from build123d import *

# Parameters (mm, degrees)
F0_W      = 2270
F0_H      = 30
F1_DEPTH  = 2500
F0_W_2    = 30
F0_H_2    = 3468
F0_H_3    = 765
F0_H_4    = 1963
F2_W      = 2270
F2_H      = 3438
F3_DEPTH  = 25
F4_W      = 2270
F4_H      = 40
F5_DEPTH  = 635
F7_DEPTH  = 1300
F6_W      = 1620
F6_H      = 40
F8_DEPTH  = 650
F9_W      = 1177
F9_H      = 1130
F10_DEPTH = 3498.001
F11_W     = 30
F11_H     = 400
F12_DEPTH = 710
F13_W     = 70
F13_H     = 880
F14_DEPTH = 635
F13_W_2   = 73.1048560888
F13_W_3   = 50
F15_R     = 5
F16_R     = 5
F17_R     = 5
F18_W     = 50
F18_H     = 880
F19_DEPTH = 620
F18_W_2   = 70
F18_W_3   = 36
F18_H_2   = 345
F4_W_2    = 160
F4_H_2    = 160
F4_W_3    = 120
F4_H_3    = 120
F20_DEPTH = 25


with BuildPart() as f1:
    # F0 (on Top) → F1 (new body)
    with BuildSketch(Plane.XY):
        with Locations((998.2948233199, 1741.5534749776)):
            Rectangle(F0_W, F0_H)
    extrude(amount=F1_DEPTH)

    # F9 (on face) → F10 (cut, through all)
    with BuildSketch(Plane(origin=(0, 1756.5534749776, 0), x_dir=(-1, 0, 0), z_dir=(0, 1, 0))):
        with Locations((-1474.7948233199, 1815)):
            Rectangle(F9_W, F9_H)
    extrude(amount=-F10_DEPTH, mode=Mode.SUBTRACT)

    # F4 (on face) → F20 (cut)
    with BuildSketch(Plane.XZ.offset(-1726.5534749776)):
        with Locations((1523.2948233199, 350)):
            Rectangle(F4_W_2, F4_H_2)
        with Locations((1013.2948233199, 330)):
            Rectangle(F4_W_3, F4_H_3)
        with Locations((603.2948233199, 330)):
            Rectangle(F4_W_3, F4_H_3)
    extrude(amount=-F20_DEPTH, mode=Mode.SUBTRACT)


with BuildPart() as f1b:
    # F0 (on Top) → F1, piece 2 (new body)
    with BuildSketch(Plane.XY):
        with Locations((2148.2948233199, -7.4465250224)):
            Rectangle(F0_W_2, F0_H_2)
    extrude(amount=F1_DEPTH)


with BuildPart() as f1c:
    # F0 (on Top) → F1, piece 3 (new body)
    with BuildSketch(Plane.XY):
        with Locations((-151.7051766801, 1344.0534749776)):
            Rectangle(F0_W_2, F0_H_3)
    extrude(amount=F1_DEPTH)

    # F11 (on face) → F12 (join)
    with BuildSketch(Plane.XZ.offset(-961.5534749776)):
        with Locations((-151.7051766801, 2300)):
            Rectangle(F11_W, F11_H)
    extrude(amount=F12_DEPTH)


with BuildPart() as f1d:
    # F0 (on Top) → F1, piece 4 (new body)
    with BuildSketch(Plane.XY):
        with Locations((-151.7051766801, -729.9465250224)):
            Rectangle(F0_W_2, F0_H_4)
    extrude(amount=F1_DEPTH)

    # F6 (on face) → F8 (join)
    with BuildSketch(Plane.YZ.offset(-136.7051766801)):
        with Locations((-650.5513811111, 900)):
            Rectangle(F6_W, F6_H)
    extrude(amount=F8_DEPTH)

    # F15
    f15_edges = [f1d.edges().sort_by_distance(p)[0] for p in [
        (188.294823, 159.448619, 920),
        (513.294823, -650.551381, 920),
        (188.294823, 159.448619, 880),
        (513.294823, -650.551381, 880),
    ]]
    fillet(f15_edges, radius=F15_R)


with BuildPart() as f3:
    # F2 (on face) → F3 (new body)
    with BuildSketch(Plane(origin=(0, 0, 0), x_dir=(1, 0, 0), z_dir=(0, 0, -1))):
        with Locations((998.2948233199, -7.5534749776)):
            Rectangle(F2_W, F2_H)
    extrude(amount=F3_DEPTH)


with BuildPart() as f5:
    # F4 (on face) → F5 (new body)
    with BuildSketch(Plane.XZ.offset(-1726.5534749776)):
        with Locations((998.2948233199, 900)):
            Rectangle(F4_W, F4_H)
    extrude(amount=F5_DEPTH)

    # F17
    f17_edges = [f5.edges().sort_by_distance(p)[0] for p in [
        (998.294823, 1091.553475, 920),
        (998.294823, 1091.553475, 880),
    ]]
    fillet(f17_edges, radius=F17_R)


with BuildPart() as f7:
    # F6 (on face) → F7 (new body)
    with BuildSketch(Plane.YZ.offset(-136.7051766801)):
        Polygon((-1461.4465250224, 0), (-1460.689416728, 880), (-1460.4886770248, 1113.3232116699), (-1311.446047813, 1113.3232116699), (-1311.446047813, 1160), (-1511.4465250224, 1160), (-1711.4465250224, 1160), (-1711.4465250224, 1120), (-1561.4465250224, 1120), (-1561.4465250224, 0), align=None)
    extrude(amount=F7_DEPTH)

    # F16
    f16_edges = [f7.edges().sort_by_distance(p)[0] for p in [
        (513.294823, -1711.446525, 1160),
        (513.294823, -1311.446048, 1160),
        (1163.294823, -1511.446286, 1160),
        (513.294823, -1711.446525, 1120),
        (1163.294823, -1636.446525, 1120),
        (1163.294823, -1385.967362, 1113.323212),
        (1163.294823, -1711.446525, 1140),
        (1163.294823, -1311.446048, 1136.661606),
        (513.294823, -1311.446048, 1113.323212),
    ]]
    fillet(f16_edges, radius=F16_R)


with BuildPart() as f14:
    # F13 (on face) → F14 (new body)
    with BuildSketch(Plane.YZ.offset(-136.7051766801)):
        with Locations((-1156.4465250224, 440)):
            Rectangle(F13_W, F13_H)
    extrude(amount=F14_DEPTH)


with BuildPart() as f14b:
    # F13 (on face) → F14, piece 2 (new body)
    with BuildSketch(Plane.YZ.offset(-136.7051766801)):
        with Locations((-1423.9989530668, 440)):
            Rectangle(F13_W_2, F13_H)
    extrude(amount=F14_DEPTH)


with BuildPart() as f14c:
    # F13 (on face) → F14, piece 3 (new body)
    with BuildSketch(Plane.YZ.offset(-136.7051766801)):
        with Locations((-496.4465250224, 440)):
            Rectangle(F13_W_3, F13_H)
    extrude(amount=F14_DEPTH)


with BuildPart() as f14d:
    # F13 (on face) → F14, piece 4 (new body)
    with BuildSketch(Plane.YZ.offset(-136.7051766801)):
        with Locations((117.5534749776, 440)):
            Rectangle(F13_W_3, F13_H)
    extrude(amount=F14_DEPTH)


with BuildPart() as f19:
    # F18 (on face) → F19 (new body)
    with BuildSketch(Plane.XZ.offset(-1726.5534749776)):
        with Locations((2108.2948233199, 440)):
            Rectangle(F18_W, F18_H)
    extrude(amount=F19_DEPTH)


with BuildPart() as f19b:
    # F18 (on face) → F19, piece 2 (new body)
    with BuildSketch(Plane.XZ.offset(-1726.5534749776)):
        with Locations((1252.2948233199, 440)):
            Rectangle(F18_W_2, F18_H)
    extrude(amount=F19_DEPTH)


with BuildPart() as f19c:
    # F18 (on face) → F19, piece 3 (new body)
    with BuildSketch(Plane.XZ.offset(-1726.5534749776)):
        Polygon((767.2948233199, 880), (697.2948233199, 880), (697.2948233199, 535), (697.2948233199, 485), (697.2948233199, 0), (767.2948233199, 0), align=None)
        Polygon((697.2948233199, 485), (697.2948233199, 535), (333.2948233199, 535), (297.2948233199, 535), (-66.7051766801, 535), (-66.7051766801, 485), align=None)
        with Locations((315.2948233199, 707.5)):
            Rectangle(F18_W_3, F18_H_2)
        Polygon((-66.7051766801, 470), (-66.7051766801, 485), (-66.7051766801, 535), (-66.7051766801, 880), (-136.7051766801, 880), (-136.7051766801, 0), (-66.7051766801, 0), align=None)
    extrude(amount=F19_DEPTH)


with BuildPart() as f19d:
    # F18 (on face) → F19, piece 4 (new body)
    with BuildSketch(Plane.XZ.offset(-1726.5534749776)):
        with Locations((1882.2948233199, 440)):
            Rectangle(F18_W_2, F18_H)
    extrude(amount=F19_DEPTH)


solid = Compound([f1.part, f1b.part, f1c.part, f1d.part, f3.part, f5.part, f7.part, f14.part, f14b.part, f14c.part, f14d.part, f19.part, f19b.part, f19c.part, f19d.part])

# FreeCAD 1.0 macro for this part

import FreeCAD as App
import Part
import Sketcher

V = App.Vector


def edges_at(feature, points):
    """Names of the edges that pass closest to the given points."""
    edges = feature.Shape.Edges
    near = lambda p: min(range(len(edges)), key=lambda i: edges[i].distToShape(Part.Vertex(*p))[0])
    return sorted({f"Edge{near(p) + 1}" for p in points})

doc = App.newDocument("Part")
params = doc.addObject("Spreadsheet::Sheet", "Params")
for row, (alias, value) in enumerate([
    ("sketch1_width", "2270 mm"),
    ("sketch1_height", "30 mm"),
    ("pad1_length", "2500 mm"),
    ("sketch2_width", "1177 mm"),
    ("sketch2_height", "1130 mm"),
    ("sketch3_width", "160 mm"),
    ("sketch3_width2", "120 mm"),
    ("pocket2_length", "25 mm"),
    ("sketch4_width", "30 mm"),
    ("sketch4_height", "3468 mm"),
    ("pad2_length", "2500 mm"),
    ("sketch5_width", "30 mm"),
    ("sketch5_height", "765 mm"),
    ("pad3_length", "2500 mm"),
    ("sketch6_width", "30 mm"),
    ("sketch6_height", "400 mm"),
    ("pad4_length", "710 mm"),
    ("sketch7_width", "30 mm"),
    ("sketch7_height", "1963 mm"),
    ("pad5_length", "2500 mm"),
    ("sketch8_width", "1620 mm"),
    ("sketch8_height", "40 mm"),
    ("pad6_length", "650 mm"),
    ("fillet_radius", "5 mm"),
    ("sketch9_width", "2270 mm"),
    ("sketch9_height", "3438 mm"),
    ("pad7_length", "25 mm"),
    ("sketch10_width", "2270 mm"),
    ("sketch10_height", "40 mm"),
    ("pad8_length", "635 mm"),
    ("fillet2_radius", "5 mm"),
    ("sketch11_width", "150 mm"),
    ("sketch11_width2", "100 mm"),
    ("sketch11_height", "40 mm"),
    ("sketch11_height2", "1120 mm"),
    ("pad9_length", "1300 mm"),
    ("fillet3_radius", "5 mm"),
    ("sketch12_width", "70 mm"),
    ("sketch12_height", "880 mm"),
    ("pad10_length", "635 mm"),
    ("sketch13_height", "880 mm"),
    ("pad11_length", "635 mm"),
    ("sketch14_width", "50 mm"),
    ("sketch14_height", "880 mm"),
    ("pad12_length", "635 mm"),
    ("sketch15_width", "50 mm"),
    ("sketch15_height", "880 mm"),
    ("pad13_length", "635 mm"),
    ("sketch16_width", "50 mm"),
    ("sketch16_height", "880 mm"),
    ("pad14_length", "620 mm"),
    ("sketch17_width", "70 mm"),
    ("sketch17_height", "880 mm"),
    ("pad15_length", "620 mm"),
    ("sketch18_width", "70 mm"),
    ("sketch18_width2", "364 mm"),
    ("sketch18_width3", "36 mm"),
    ("sketch18_height", "345 mm"),
    ("sketch18_height2", "880 mm"),
    ("pad16_length", "620 mm"),
    ("sketch19_width", "70 mm"),
    ("sketch19_height", "880 mm"),
    ("pad17_length", "620 mm"),
], start=1):
    params.set(f"A{row}", alias)
    params.set(f"B{row}", "=" + value)
    params.setAlias(f"B{row}", alias)

body = doc.addObject("PartDesign::Body", "Body")

# Sketch on XY plane
sketch1 = body.newObject("Sketcher::SketchObject", "Sketch")
sketch1.AttachmentSupport = (doc.getObject("XY_Plane"), [""])
sketch1.MapMode = "FlatFace"
sketch1.addGeometry([
    Part.LineSegment(V(-137, 1757, 0), V(-137, 1727, 0)),
    Part.LineSegment(V(-137, 1727, 0), V(2133, 1727, 0)),
    Part.LineSegment(V(2133, 1727, 0), V(2133, 1757, 0)),
    Part.LineSegment(V(2133, 1757, 0), V(-137, 1757, 0)),
], False)
sketch1.addConstraint([
    Sketcher.Constraint("Coincident", 0, 2, 1, 1),
    Sketcher.Constraint("Coincident", 1, 2, 2, 1),
    Sketcher.Constraint("Coincident", 2, 2, 3, 1),
    Sketcher.Constraint("Coincident", 3, 2, 0, 1),
    Sketcher.Constraint("Vertical", 0),
    Sketcher.Constraint("Horizontal", 1),
    Sketcher.Constraint("Vertical", 2),
    Sketcher.Constraint("Horizontal", 3),
    Sketcher.Constraint("DistanceX", 1, 1, 1, 2, 2270.0),
    Sketcher.Constraint("DistanceY", 0, 2, 0, 1, 30.0),
    Sketcher.Constraint("DistanceX", 0, 2, -1, 1, 136.705177),
    Sketcher.Constraint("DistanceY", -1, 1, 0, 2, 1726.553475),
])
sketch1.setExpression("Constraints[8]", "Params.sketch1_width")
sketch1.setExpression("Constraints[9]", "Params.sketch1_height")
pad1 = body.newObject("PartDesign::Pad", "Pad")
pad1.Profile = sketch1
pad1.setExpression("Length", "Params.pad1_length")

# Sketch on XZ plane
sketch2 = body.newObject("Sketcher::SketchObject", "Sketch001")
sketch2.AttachmentSupport = (doc.getObject("XZ_Plane"), [""])
sketch2.MapMode = "FlatFace"
sketch2.AttachmentOffset = App.Placement(V(0, 0, -1756.553475), App.Rotation())
sketch2.addGeometry([
    Part.LineSegment(V(2063, 2380, 0), V(2063, 1250, 0)),
    Part.LineSegment(V(2063, 1250, 0), V(886, 1250, 0)),
    Part.LineSegment(V(886, 1250, 0), V(886, 2380, 0)),
    Part.LineSegment(V(886, 2380, 0), V(2063, 2380, 0)),
], False)
sketch2.addConstraint([
    Sketcher.Constraint("Coincident", 0, 2, 1, 1),
    Sketcher.Constraint("Coincident", 1, 2, 2, 1),
    Sketcher.Constraint("Coincident", 2, 2, 3, 1),
    Sketcher.Constraint("Coincident", 3, 2, 0, 1),
    Sketcher.Constraint("Vertical", 0),
    Sketcher.Constraint("Horizontal", 1),
    Sketcher.Constraint("Vertical", 2),
    Sketcher.Constraint("Horizontal", 3),
    Sketcher.Constraint("DistanceX", 1, 2, 1, 1, 1177.0),
    Sketcher.Constraint("DistanceY", 0, 2, 0, 1, 1130.0),
    Sketcher.Constraint("DistanceY", -1, 1, 0, 2, 1250.0),
    Sketcher.Constraint("DistanceX", -1, 1, 0, 2, 2063.294823),
])
sketch2.setExpression("Constraints[8]", "Params.sketch2_width")
sketch2.setExpression("Constraints[9]", "Params.sketch2_height")
pocket1 = body.newObject("PartDesign::Pocket", "Pocket")
pocket1.Profile = sketch2
pocket1.Type = "ThroughAll"
pocket1.Reversed = True

# Sketch on XZ plane
sketch3 = body.newObject("Sketcher::SketchObject", "Sketch002")
sketch3.AttachmentSupport = (doc.getObject("XZ_Plane"), [""])
sketch3.MapMode = "FlatFace"
sketch3.AttachmentOffset = App.Placement(V(0, 0, -1726.553475), App.Rotation())
sketch3.addGeometry([
    Part.LineSegment(V(1443, 430, 0), V(1443, 270, 0)),  # 0
    Part.LineSegment(V(1443, 270, 0), V(1603, 270, 0)),  # 1
    Part.LineSegment(V(1603, 270, 0), V(1603, 430, 0)),  # 2
    Part.LineSegment(V(1603, 430, 0), V(1443, 430, 0)),  # 3
    Part.LineSegment(V(953, 390, 0), V(953, 270, 0)),  # 4
    Part.LineSegment(V(953, 270, 0), V(1073, 270, 0)),  # 5
    Part.LineSegment(V(1073, 270, 0), V(1073, 390, 0)),  # 6
    Part.LineSegment(V(1073, 390, 0), V(953, 390, 0)),  # 7
    Part.LineSegment(V(543, 390, 0), V(543, 270, 0)),  # 8
    Part.LineSegment(V(543, 270, 0), V(663, 270, 0)),  # 9
    Part.LineSegment(V(663, 270, 0), V(663, 390, 0)),  # 10
    Part.LineSegment(V(663, 390, 0), V(543, 390, 0)),  # 11
], False)
sketch3.addConstraint([
    Sketcher.Constraint("Coincident", 0, 2, 1, 1),
    Sketcher.Constraint("Coincident", 1, 2, 2, 1),
    Sketcher.Constraint("Coincident", 2, 2, 3, 1),
    Sketcher.Constraint("Coincident", 3, 2, 0, 1),
    Sketcher.Constraint("Coincident", 4, 2, 5, 1),
    Sketcher.Constraint("Coincident", 5, 2, 6, 1),
    Sketcher.Constraint("Coincident", 6, 2, 7, 1),
    Sketcher.Constraint("Coincident", 7, 2, 4, 1),
    Sketcher.Constraint("Coincident", 8, 2, 9, 1),
    Sketcher.Constraint("Coincident", 9, 2, 10, 1),
    Sketcher.Constraint("Coincident", 10, 2, 11, 1),
    Sketcher.Constraint("Coincident", 11, 2, 8, 1),
    Sketcher.Constraint("Vertical", 0),
    Sketcher.Constraint("Horizontal", 1),
    Sketcher.Constraint("Vertical", 2),
    Sketcher.Constraint("Horizontal", 3),
    Sketcher.Constraint("Vertical", 4),
    Sketcher.Constraint("Horizontal", 5),
    Sketcher.Constraint("Vertical", 6),
    Sketcher.Constraint("Horizontal", 7),
    Sketcher.Constraint("Vertical", 8),
    Sketcher.Constraint("Horizontal", 9),
    Sketcher.Constraint("Vertical", 10),
    Sketcher.Constraint("Horizontal", 11),
    Sketcher.Constraint("Horizontal", 1, 2, 4, 2),
    Sketcher.Constraint("Horizontal", 5, 2, 8, 2),
    Sketcher.Constraint("Horizontal", 7, 2, 10, 2),
    Sketcher.Constraint("Equal", 7, 9),
    Sketcher.Constraint("Equal", 3, 0),
    Sketcher.Constraint("Equal", 11, 4),
    Sketcher.Constraint("DistanceX", 1, 1, 1, 2, 160.0),
    Sketcher.Constraint("DistanceX", 5, 1, 5, 2, 120.0),
    Sketcher.Constraint("DistanceY", -1, 1, 0, 2, 270.0),
    Sketcher.Constraint("DistanceX", 4, 2, 0, 2, 490.0),
    Sketcher.Constraint("DistanceX", 8, 2, 4, 2, 410.0),
    Sketcher.Constraint("DistanceX", -1, 1, 0, 2, 1443.294823),
])
sketch3.setExpression("Constraints[30]", "Params.sketch3_width")
sketch3.setExpression("Constraints[31]", "Params.sketch3_width2")
pocket2 = body.newObject("PartDesign::Pocket", "Pocket001")
pocket2.Profile = sketch3
pocket2.setExpression("Length", "Params.pocket2_length")
body2 = doc.addObject("PartDesign::Body", "Body001")

# Sketch on XY plane
sketch4 = body2.newObject("Sketcher::SketchObject", "Sketch003")
sketch4.AttachmentSupport = (doc.getObject("XY_Plane001"), [""])
sketch4.MapMode = "FlatFace"
sketch4.addGeometry([
    Part.LineSegment(V(2133, 1727, 0), V(2133, -1741, 0)),
    Part.LineSegment(V(2133, -1741, 0), V(2163, -1741, 0)),
    Part.LineSegment(V(2163, -1741, 0), V(2163, 1727, 0)),
    Part.LineSegment(V(2163, 1727, 0), V(2133, 1727, 0)),
], False)
sketch4.addConstraint([
    Sketcher.Constraint("Coincident", 0, 2, 1, 1),
    Sketcher.Constraint("Coincident", 1, 2, 2, 1),
    Sketcher.Constraint("Coincident", 2, 2, 3, 1),
    Sketcher.Constraint("Coincident", 3, 2, 0, 1),
    Sketcher.Constraint("Vertical", 0),
    Sketcher.Constraint("Horizontal", 1),
    Sketcher.Constraint("Vertical", 2),
    Sketcher.Constraint("Horizontal", 3),
    Sketcher.Constraint("DistanceX", 1, 1, 1, 2, 30.0),
    Sketcher.Constraint("DistanceY", 0, 2, 0, 1, 3468.0),
    Sketcher.Constraint("DistanceX", -1, 1, 0, 2, 2133.294823),
    Sketcher.Constraint("DistanceY", 0, 2, -1, 1, 1741.446525),
])
sketch4.setExpression("Constraints[8]", "Params.sketch4_width")
sketch4.setExpression("Constraints[9]", "Params.sketch4_height")
pad2 = body2.newObject("PartDesign::Pad", "Pad001")
pad2.Profile = sketch4
pad2.setExpression("Length", "Params.pad2_length")
body3 = doc.addObject("PartDesign::Body", "Body002")

# Sketch on XY plane
sketch5 = body3.newObject("Sketcher::SketchObject", "Sketch004")
sketch5.AttachmentSupport = (doc.getObject("XY_Plane002"), [""])
sketch5.MapMode = "FlatFace"
sketch5.addGeometry([
    Part.LineSegment(V(-167, 1727, 0), V(-167, 962, 0)),
    Part.LineSegment(V(-167, 962, 0), V(-137, 962, 0)),
    Part.LineSegment(V(-137, 962, 0), V(-137, 1727, 0)),
    Part.LineSegment(V(-137, 1727, 0), V(-167, 1727, 0)),
], False)
sketch5.addConstraint([
    Sketcher.Constraint("Coincident", 0, 2, 1, 1),
    Sketcher.Constraint("Coincident", 1, 2, 2, 1),
    Sketcher.Constraint("Coincident", 2, 2, 3, 1),
    Sketcher.Constraint("Coincident", 3, 2, 0, 1),
    Sketcher.Constraint("Vertical", 0),
    Sketcher.Constraint("Horizontal", 1),
    Sketcher.Constraint("Vertical", 2),
    Sketcher.Constraint("Horizontal", 3),
    Sketcher.Constraint("DistanceX", 1, 1, 1, 2, 30.0),
    Sketcher.Constraint("DistanceY", 0, 2, 0, 1, 765.0),
    Sketcher.Constraint("DistanceX", 0, 2, -1, 1, 166.705177),
    Sketcher.Constraint("DistanceY", -1, 1, 0, 2, 961.553475),
])
sketch5.setExpression("Constraints[8]", "Params.sketch5_width")
sketch5.setExpression("Constraints[9]", "Params.sketch5_height")
pad3 = body3.newObject("PartDesign::Pad", "Pad002")
pad3.Profile = sketch5
pad3.setExpression("Length", "Params.pad3_length")

# Sketch on XZ plane
sketch6 = body3.newObject("Sketcher::SketchObject", "Sketch005")
sketch6.AttachmentSupport = (doc.getObject("XZ_Plane002"), [""])
sketch6.MapMode = "FlatFace"
sketch6.AttachmentOffset = App.Placement(V(0, 0, -961.553475), App.Rotation())
sketch6.addGeometry([
    Part.LineSegment(V(-167, 2500, 0), V(-167, 2100, 0)),
    Part.LineSegment(V(-167, 2100, 0), V(-137, 2100, 0)),
    Part.LineSegment(V(-137, 2100, 0), V(-137, 2500, 0)),
    Part.LineSegment(V(-137, 2500, 0), V(-167, 2500, 0)),
], False)
sketch6.addConstraint([
    Sketcher.Constraint("Coincident", 0, 2, 1, 1),
    Sketcher.Constraint("Coincident", 1, 2, 2, 1),
    Sketcher.Constraint("Coincident", 2, 2, 3, 1),
    Sketcher.Constraint("Coincident", 3, 2, 0, 1),
    Sketcher.Constraint("Vertical", 0),
    Sketcher.Constraint("Horizontal", 1),
    Sketcher.Constraint("Vertical", 2),
    Sketcher.Constraint("Horizontal", 3),
    Sketcher.Constraint("DistanceX", 1, 1, 1, 2, 30.0),
    Sketcher.Constraint("DistanceY", 0, 2, 0, 1, 400.0),
    Sketcher.Constraint("DistanceY", -1, 1, 0, 2, 2100.0),
    Sketcher.Constraint("DistanceX", 0, 2, -1, 1, 166.705177),
])
sketch6.setExpression("Constraints[8]", "Params.sketch6_width")
sketch6.setExpression("Constraints[9]", "Params.sketch6_height")
pad4 = body3.newObject("PartDesign::Pad", "Pad003")
pad4.Profile = sketch6
pad4.setExpression("Length", "Params.pad4_length")
body4 = doc.addObject("PartDesign::Body", "Body003")

# Sketch on XY plane
sketch7 = body4.newObject("Sketcher::SketchObject", "Sketch006")
sketch7.AttachmentSupport = (doc.getObject("XY_Plane003"), [""])
sketch7.MapMode = "FlatFace"
sketch7.addGeometry([
    Part.LineSegment(V(-167, 252, 0), V(-167, -1711, 0)),
    Part.LineSegment(V(-167, -1711, 0), V(-137, -1711, 0)),
    Part.LineSegment(V(-137, -1711, 0), V(-137, 252, 0)),
    Part.LineSegment(V(-137, 252, 0), V(-167, 252, 0)),
], False)
sketch7.addConstraint([
    Sketcher.Constraint("Coincident", 0, 2, 1, 1),
    Sketcher.Constraint("Coincident", 1, 2, 2, 1),
    Sketcher.Constraint("Coincident", 2, 2, 3, 1),
    Sketcher.Constraint("Coincident", 3, 2, 0, 1),
    Sketcher.Constraint("Vertical", 0),
    Sketcher.Constraint("Horizontal", 1),
    Sketcher.Constraint("Vertical", 2),
    Sketcher.Constraint("Horizontal", 3),
    Sketcher.Constraint("DistanceX", 1, 1, 1, 2, 30.0),
    Sketcher.Constraint("DistanceY", 0, 2, 0, 1, 1963.0),
    Sketcher.Constraint("DistanceX", 0, 2, -1, 1, 166.705177),
    Sketcher.Constraint("DistanceY", 0, 2, -1, 1, 1711.446525),
])
sketch7.setExpression("Constraints[8]", "Params.sketch7_width")
sketch7.setExpression("Constraints[9]", "Params.sketch7_height")
pad5 = body4.newObject("PartDesign::Pad", "Pad004")
pad5.Profile = sketch7
pad5.setExpression("Length", "Params.pad5_length")

# Sketch on YZ plane
sketch8 = body4.newObject("Sketcher::SketchObject", "Sketch007")
sketch8.AttachmentSupport = (doc.getObject("YZ_Plane003"), [""])
sketch8.MapMode = "FlatFace"
sketch8.AttachmentOffset = App.Placement(V(0, 0, -136.705177), App.Rotation())
sketch8.addGeometry([
    Part.LineSegment(V(-1461, 920, 0), V(-1461, 880, 0)),
    Part.LineSegment(V(-1461, 880, 0), V(159, 880, 0)),
    Part.LineSegment(V(159, 880, 0), V(159, 920, 0)),
    Part.LineSegment(V(159, 920, 0), V(-1461, 920, 0)),
], False)
sketch8.addConstraint([
    Sketcher.Constraint("Coincident", 0, 2, 1, 1),
    Sketcher.Constraint("Coincident", 1, 2, 2, 1),
    Sketcher.Constraint("Coincident", 2, 2, 3, 1),
    Sketcher.Constraint("Coincident", 3, 2, 0, 1),
    Sketcher.Constraint("Vertical", 0),
    Sketcher.Constraint("Horizontal", 1),
    Sketcher.Constraint("Vertical", 2),
    Sketcher.Constraint("Horizontal", 3),
    Sketcher.Constraint("DistanceX", 1, 1, 1, 2, 1620.0),
    Sketcher.Constraint("DistanceY", 0, 2, 0, 1, 40.0),
    Sketcher.Constraint("DistanceY", -1, 1, 0, 2, 880.0),
    Sketcher.Constraint("DistanceX", 0, 2, -1, 1, 1460.551381),
])
sketch8.setExpression("Constraints[8]", "Params.sketch8_width")
sketch8.setExpression("Constraints[9]", "Params.sketch8_height")
pad6 = body4.newObject("PartDesign::Pad", "Pad005")
pad6.Profile = sketch8
pad6.setExpression("Length", "Params.pad6_length")
doc.recompute()

fillet = body4.newObject("PartDesign::Fillet", "Fillet")
fillet.Base = (pad6, edges_at(pad6, [
    (188.295, 159.449, 920),
    (513.295, -650.551, 920),
    (188.295, 159.449, 880),
    (513.295, -650.551, 880),
]))
fillet.setExpression("Radius", "Params.fillet_radius")
body5 = doc.addObject("PartDesign::Body", "Body004")

# Sketch on XY plane
sketch9 = body5.newObject("Sketcher::SketchObject", "Sketch008")
sketch9.AttachmentSupport = (doc.getObject("XY_Plane004"), [""])
sketch9.MapMode = "FlatFace"
sketch9.addGeometry([
    Part.LineSegment(V(-137, -1711, 0), V(-137, 1727, 0)),
    Part.LineSegment(V(-137, 1727, 0), V(2133, 1727, 0)),
    Part.LineSegment(V(2133, 1727, 0), V(2133, -1711, 0)),
    Part.LineSegment(V(2133, -1711, 0), V(-137, -1711, 0)),
], False)
sketch9.addConstraint([
    Sketcher.Constraint("Coincident", 0, 2, 1, 1),
    Sketcher.Constraint("Coincident", 1, 2, 2, 1),
    Sketcher.Constraint("Coincident", 2, 2, 3, 1),
    Sketcher.Constraint("Coincident", 3, 2, 0, 1),
    Sketcher.Constraint("Vertical", 0),
    Sketcher.Constraint("Horizontal", 1),
    Sketcher.Constraint("Vertical", 2),
    Sketcher.Constraint("Horizontal", 3),
    Sketcher.Constraint("DistanceX", 1, 1, 1, 2, 2270.0),
    Sketcher.Constraint("DistanceY", 0, 1, 0, 2, 3438.0),
    Sketcher.Constraint("DistanceX", 0, 2, -1, 1, 136.705177),
    Sketcher.Constraint("DistanceY", -1, 1, 0, 2, 1726.553475),
])
sketch9.setExpression("Constraints[8]", "Params.sketch9_width")
sketch9.setExpression("Constraints[9]", "Params.sketch9_height")
pad7 = body5.newObject("PartDesign::Pad", "Pad006")
pad7.Profile = sketch9
pad7.setExpression("Length", "Params.pad7_length")
pad7.Reversed = True
body6 = doc.addObject("PartDesign::Body", "Body005")

# Sketch on XZ plane
sketch10 = body6.newObject("Sketcher::SketchObject", "Sketch009")
sketch10.AttachmentSupport = (doc.getObject("XZ_Plane005"), [""])
sketch10.MapMode = "FlatFace"
sketch10.AttachmentOffset = App.Placement(V(0, 0, -1726.553475), App.Rotation())
sketch10.addGeometry([
    Part.LineSegment(V(-137, 920, 0), V(-137, 880, 0)),
    Part.LineSegment(V(-137, 880, 0), V(2133, 880, 0)),
    Part.LineSegment(V(2133, 880, 0), V(2133, 920, 0)),
    Part.LineSegment(V(2133, 920, 0), V(-137, 920, 0)),
], False)
sketch10.addConstraint([
    Sketcher.Constraint("Coincident", 0, 2, 1, 1),
    Sketcher.Constraint("Coincident", 1, 2, 2, 1),
    Sketcher.Constraint("Coincident", 2, 2, 3, 1),
    Sketcher.Constraint("Coincident", 3, 2, 0, 1),
    Sketcher.Constraint("Vertical", 0),
    Sketcher.Constraint("Horizontal", 1),
    Sketcher.Constraint("Vertical", 2),
    Sketcher.Constraint("Horizontal", 3),
    Sketcher.Constraint("DistanceX", 1, 1, 1, 2, 2270.0),
    Sketcher.Constraint("DistanceY", 0, 2, 0, 1, 40.0),
    Sketcher.Constraint("DistanceY", -1, 1, 0, 2, 880.0),
    Sketcher.Constraint("DistanceX", 0, 2, -1, 1, 136.705177),
])
sketch10.setExpression("Constraints[8]", "Params.sketch10_width")
sketch10.setExpression("Constraints[9]", "Params.sketch10_height")
pad8 = body6.newObject("PartDesign::Pad", "Pad007")
pad8.Profile = sketch10
pad8.setExpression("Length", "Params.pad8_length")
doc.recompute()

fillet2 = body6.newObject("PartDesign::Fillet", "Fillet001")
fillet2.Base = (pad8, edges_at(pad8, [(998.295, 1091.553, 920), (998.295, 1091.553, 880)]))
fillet2.setExpression("Radius", "Params.fillet2_radius")
body7 = doc.addObject("PartDesign::Body", "Body006")

# Sketch on YZ plane
sketch11 = body7.newObject("Sketcher::SketchObject", "Sketch010")
sketch11.AttachmentSupport = (doc.getObject("YZ_Plane006"), [""])
sketch11.MapMode = "FlatFace"
sketch11.AttachmentOffset = App.Placement(V(0, 0, -136.705177), App.Rotation())
sketch11.addGeometry([
    Part.LineSegment(V(-1461, 0, 0), V(-1460, 1113, 0)),  # 0
    Part.LineSegment(V(-1460, 1113, 0), V(-1311, 1113, 0)),  # 1
    Part.LineSegment(V(-1311, 1113, 0), V(-1311, 1160, 0)),  # 2
    Part.LineSegment(V(-1311, 1160, 0), V(-1711, 1160, 0)),  # 3
    Part.LineSegment(V(-1711, 1160, 0), V(-1711, 1120, 0)),  # 4
    Part.LineSegment(V(-1711, 1120, 0), V(-1561, 1120, 0)),  # 5
    Part.LineSegment(V(-1561, 1120, 0), V(-1561, 0, 0)),  # 6
    Part.LineSegment(V(-1561, 0, 0), V(-1461, 0, 0)),  # 7
], False)
sketch11.addConstraint([
    Sketcher.Constraint("Coincident", 0, 2, 1, 1),
    Sketcher.Constraint("Coincident", 1, 2, 2, 1),
    Sketcher.Constraint("Coincident", 2, 2, 3, 1),
    Sketcher.Constraint("Coincident", 3, 2, 4, 1),
    Sketcher.Constraint("Coincident", 4, 2, 5, 1),
    Sketcher.Constraint("Coincident", 5, 2, 6, 1),
    Sketcher.Constraint("Coincident", 6, 2, 7, 1),
    Sketcher.Constraint("Coincident", 7, 2, 0, 1),
    Sketcher.Constraint("Horizontal", 1),
    Sketcher.Constraint("Vertical", 2),
    Sketcher.Constraint("Horizontal", 3),
    Sketcher.Constraint("Vertical", 4),
    Sketcher.Constraint("Horizontal", 5),
    Sketcher.Constraint("Vertical", 6),
    Sketcher.Constraint("Horizontal", 7),
    Sketcher.Constraint("PointOnObject", 6, 2, -1),
    Sketcher.Constraint("DistanceX", 5, 1, 5, 2, 150.0),
    Sketcher.Constraint("DistanceX", 7, 1, 7, 2, 100.0),
    Sketcher.Constraint("DistanceY", 4, 2, 4, 1, 40.0),
    Sketcher.Constraint("DistanceY", 6, 2, 6, 1, 1120.0),
    Sketcher.Constraint("DistanceX", 1, 1, 1, 2, 149.042629),
    Sketcher.Constraint("DistanceY", 2, 1, 2, 2, 46.676788),
    Sketcher.Constraint("DistanceX", 3, 2, 3, 1, 400.000477),
    Sketcher.Constraint("DistanceX", 0, 2, -1, 1, 1460.488677),
])
sketch11.setExpression("Constraints[16]", "Params.sketch11_width")
sketch11.setExpression("Constraints[17]", "Params.sketch11_width2")
sketch11.setExpression("Constraints[18]", "Params.sketch11_height")
sketch11.setExpression("Constraints[19]", "Params.sketch11_height2")
pad9 = body7.newObject("PartDesign::Pad", "Pad008")
pad9.Profile = sketch11
pad9.setExpression("Length", "Params.pad9_length")
doc.recompute()

fillet3 = body7.newObject("PartDesign::Fillet", "Fillet002")
fillet3.Base = (pad9, edges_at(pad9, [
    (513.295, -1711.447, 1160),
    (513.295, -1311.446, 1160),
    (1163.295, -1511.446, 1160),
    (513.295, -1711.447, 1120),
    (1163.295, -1636.447, 1120),
    (1163.295, -1385.967, 1113.323),
    (1163.295, -1711.447, 1140),
    (1163.295, -1311.446, 1136.662),
    (513.295, -1311.446, 1113.323),
]))
fillet3.setExpression("Radius", "Params.fillet3_radius")
body8 = doc.addObject("PartDesign::Body", "Body007")

# Sketch on YZ plane
sketch12 = body8.newObject("Sketcher::SketchObject", "Sketch011")
sketch12.AttachmentSupport = (doc.getObject("YZ_Plane007"), [""])
sketch12.MapMode = "FlatFace"
sketch12.AttachmentOffset = App.Placement(V(0, 0, -136.705177), App.Rotation())
sketch12.addGeometry([
    Part.LineSegment(V(-1191, 880, 0), V(-1191, 0, 0)),
    Part.LineSegment(V(-1191, 0, 0), V(-1121, 0, 0)),
    Part.LineSegment(V(-1121, 0, 0), V(-1121, 880, 0)),
    Part.LineSegment(V(-1121, 880, 0), V(-1191, 880, 0)),
], False)
sketch12.addConstraint([
    Sketcher.Constraint("Coincident", 0, 2, 1, 1),
    Sketcher.Constraint("Coincident", 1, 2, 2, 1),
    Sketcher.Constraint("Coincident", 2, 2, 3, 1),
    Sketcher.Constraint("Coincident", 3, 2, 0, 1),
    Sketcher.Constraint("Vertical", 0),
    Sketcher.Constraint("Horizontal", 1),
    Sketcher.Constraint("Vertical", 2),
    Sketcher.Constraint("Horizontal", 3),
    Sketcher.Constraint("PointOnObject", 0, 2, -1),
    Sketcher.Constraint("DistanceX", 1, 1, 1, 2, 70.0),
    Sketcher.Constraint("DistanceY", 0, 2, 0, 1, 880.0),
    Sketcher.Constraint("DistanceX", 0, 2, -1, 1, 1191.446525),
])
sketch12.setExpression("Constraints[9]", "Params.sketch12_width")
sketch12.setExpression("Constraints[10]", "Params.sketch12_height")
pad10 = body8.newObject("PartDesign::Pad", "Pad009")
pad10.Profile = sketch12
pad10.setExpression("Length", "Params.pad10_length")
body9 = doc.addObject("PartDesign::Body", "Body008")

# Sketch on YZ plane
sketch13 = body9.newObject("Sketcher::SketchObject", "Sketch012")
sketch13.AttachmentSupport = (doc.getObject("YZ_Plane008"), [""])
sketch13.MapMode = "FlatFace"
sketch13.AttachmentOffset = App.Placement(V(0, 0, -136.705177), App.Rotation())
sketch13.addGeometry([
    Part.LineSegment(V(-1461, 880, 0), V(-1461, 0, 0)),
    Part.LineSegment(V(-1461, 0, 0), V(-1387, 0, 0)),
    Part.LineSegment(V(-1387, 0, 0), V(-1387, 880, 0)),
    Part.LineSegment(V(-1387, 880, 0), V(-1461, 880, 0)),
], False)
sketch13.addConstraint([
    Sketcher.Constraint("Coincident", 0, 2, 1, 1),
    Sketcher.Constraint("Coincident", 1, 2, 2, 1),
    Sketcher.Constraint("Coincident", 2, 2, 3, 1),
    Sketcher.Constraint("Coincident", 3, 2, 0, 1),
    Sketcher.Constraint("Vertical", 0),
    Sketcher.Constraint("Horizontal", 1),
    Sketcher.Constraint("Vertical", 2),
    Sketcher.Constraint("Horizontal", 3),
    Sketcher.Constraint("PointOnObject", 0, 2, -1),
    Sketcher.Constraint("DistanceY", 0, 2, 0, 1, 880.0),
    Sketcher.Constraint("DistanceX", 1, 1, 1, 2, 73.104856),
    Sketcher.Constraint("DistanceX", 0, 2, -1, 1, 1460.551381),
])
sketch13.setExpression("Constraints[9]", "Params.sketch13_height")
pad11 = body9.newObject("PartDesign::Pad", "Pad010")
pad11.Profile = sketch13
pad11.setExpression("Length", "Params.pad11_length")
body10 = doc.addObject("PartDesign::Body", "Body009")

# Sketch on YZ plane
sketch14 = body10.newObject("Sketcher::SketchObject", "Sketch013")
sketch14.AttachmentSupport = (doc.getObject("YZ_Plane009"), [""])
sketch14.MapMode = "FlatFace"
sketch14.AttachmentOffset = App.Placement(V(0, 0, -136.705177), App.Rotation())
sketch14.addGeometry([
    Part.LineSegment(V(-521, 880, 0), V(-521, 0, 0)),
    Part.LineSegment(V(-521, 0, 0), V(-471, 0, 0)),
    Part.LineSegment(V(-471, 0, 0), V(-471, 880, 0)),
    Part.LineSegment(V(-471, 880, 0), V(-521, 880, 0)),
], False)
sketch14.addConstraint([
    Sketcher.Constraint("Coincident", 0, 2, 1, 1),
    Sketcher.Constraint("Coincident", 1, 2, 2, 1),
    Sketcher.Constraint("Coincident", 2, 2, 3, 1),
    Sketcher.Constraint("Coincident", 3, 2, 0, 1),
    Sketcher.Constraint("Vertical", 0),
    Sketcher.Constraint("Horizontal", 1),
    Sketcher.Constraint("Vertical", 2),
    Sketcher.Constraint("Horizontal", 3),
    Sketcher.Constraint("PointOnObject", 0, 2, -1),
    Sketcher.Constraint("DistanceX", 1, 1, 1, 2, 50.0),
    Sketcher.Constraint("DistanceY", 0, 2, 0, 1, 880.0),
    Sketcher.Constraint("DistanceX", 0, 2, -1, 1, 521.446525),
])
sketch14.setExpression("Constraints[9]", "Params.sketch14_width")
sketch14.setExpression("Constraints[10]", "Params.sketch14_height")
pad12 = body10.newObject("PartDesign::Pad", "Pad011")
pad12.Profile = sketch14
pad12.setExpression("Length", "Params.pad12_length")
body11 = doc.addObject("PartDesign::Body", "Body010")

# Sketch on YZ plane
sketch15 = body11.newObject("Sketcher::SketchObject", "Sketch014")
sketch15.AttachmentSupport = (doc.getObject("YZ_Plane010"), [""])
sketch15.MapMode = "FlatFace"
sketch15.AttachmentOffset = App.Placement(V(0, 0, -136.705177), App.Rotation())
sketch15.addGeometry([
    Part.LineSegment(V(93, 880, 0), V(93, 0, 0)),
    Part.LineSegment(V(93, 0, 0), V(143, 0, 0)),
    Part.LineSegment(V(143, 0, 0), V(143, 880, 0)),
    Part.LineSegment(V(143, 880, 0), V(93, 880, 0)),
], False)
sketch15.addConstraint([
    Sketcher.Constraint("Coincident", 0, 2, 1, 1),
    Sketcher.Constraint("Coincident", 1, 2, 2, 1),
    Sketcher.Constraint("Coincident", 2, 2, 3, 1),
    Sketcher.Constraint("Coincident", 3, 2, 0, 1),
    Sketcher.Constraint("Vertical", 0),
    Sketcher.Constraint("Horizontal", 1),
    Sketcher.Constraint("Vertical", 2),
    Sketcher.Constraint("Horizontal", 3),
    Sketcher.Constraint("PointOnObject", 0, 2, -1),
    Sketcher.Constraint("DistanceX", 1, 1, 1, 2, 50.0),
    Sketcher.Constraint("DistanceY", 0, 2, 0, 1, 880.0),
    Sketcher.Constraint("DistanceX", -1, 1, 0, 2, 92.553475),
])
sketch15.setExpression("Constraints[9]", "Params.sketch15_width")
sketch15.setExpression("Constraints[10]", "Params.sketch15_height")
pad13 = body11.newObject("PartDesign::Pad", "Pad012")
pad13.Profile = sketch15
pad13.setExpression("Length", "Params.pad13_length")
body12 = doc.addObject("PartDesign::Body", "Body011")

# Sketch on XZ plane
sketch16 = body12.newObject("Sketcher::SketchObject", "Sketch015")
sketch16.AttachmentSupport = (doc.getObject("XZ_Plane011"), [""])
sketch16.MapMode = "FlatFace"
sketch16.AttachmentOffset = App.Placement(V(0, 0, -1726.553475), App.Rotation())
sketch16.addGeometry([
    Part.LineSegment(V(2083, 880, 0), V(2083, 0, 0)),
    Part.LineSegment(V(2083, 0, 0), V(2133, 0, 0)),
    Part.LineSegment(V(2133, 0, 0), V(2133, 880, 0)),
    Part.LineSegment(V(2133, 880, 0), V(2083, 880, 0)),
], False)
sketch16.addConstraint([
    Sketcher.Constraint("Coincident", 0, 2, 1, 1),
    Sketcher.Constraint("Coincident", 1, 2, 2, 1),
    Sketcher.Constraint("Coincident", 2, 2, 3, 1),
    Sketcher.Constraint("Coincident", 3, 2, 0, 1),
    Sketcher.Constraint("Vertical", 0),
    Sketcher.Constraint("Horizontal", 1),
    Sketcher.Constraint("Vertical", 2),
    Sketcher.Constraint("Horizontal", 3),
    Sketcher.Constraint("PointOnObject", 0, 2, -1),
    Sketcher.Constraint("DistanceX", 1, 1, 1, 2, 50.0),
    Sketcher.Constraint("DistanceY", 0, 2, 0, 1, 880.0),
    Sketcher.Constraint("DistanceX", -1, 1, 0, 2, 2083.294823),
])
sketch16.setExpression("Constraints[9]", "Params.sketch16_width")
sketch16.setExpression("Constraints[10]", "Params.sketch16_height")
pad14 = body12.newObject("PartDesign::Pad", "Pad013")
pad14.Profile = sketch16
pad14.setExpression("Length", "Params.pad14_length")
body13 = doc.addObject("PartDesign::Body", "Body012")

# Sketch on XZ plane
sketch17 = body13.newObject("Sketcher::SketchObject", "Sketch016")
sketch17.AttachmentSupport = (doc.getObject("XZ_Plane012"), [""])
sketch17.MapMode = "FlatFace"
sketch17.AttachmentOffset = App.Placement(V(0, 0, -1726.553475), App.Rotation())
sketch17.addGeometry([
    Part.LineSegment(V(1217, 880, 0), V(1217, 0, 0)),
    Part.LineSegment(V(1217, 0, 0), V(1287, 0, 0)),
    Part.LineSegment(V(1287, 0, 0), V(1287, 880, 0)),
    Part.LineSegment(V(1287, 880, 0), V(1217, 880, 0)),
], False)
sketch17.addConstraint([
    Sketcher.Constraint("Coincident", 0, 2, 1, 1),
    Sketcher.Constraint("Coincident", 1, 2, 2, 1),
    Sketcher.Constraint("Coincident", 2, 2, 3, 1),
    Sketcher.Constraint("Coincident", 3, 2, 0, 1),
    Sketcher.Constraint("Vertical", 0),
    Sketcher.Constraint("Horizontal", 1),
    Sketcher.Constraint("Vertical", 2),
    Sketcher.Constraint("Horizontal", 3),
    Sketcher.Constraint("PointOnObject", 0, 2, -1),
    Sketcher.Constraint("DistanceX", 1, 1, 1, 2, 70.0),
    Sketcher.Constraint("DistanceY", 0, 2, 0, 1, 880.0),
    Sketcher.Constraint("DistanceX", -1, 1, 0, 2, 1217.294823),
])
sketch17.setExpression("Constraints[9]", "Params.sketch17_width")
sketch17.setExpression("Constraints[10]", "Params.sketch17_height")
pad15 = body13.newObject("PartDesign::Pad", "Pad014")
pad15.Profile = sketch17
pad15.setExpression("Length", "Params.pad15_length")
body14 = doc.addObject("PartDesign::Body", "Body013")

# Sketch on XZ plane
sketch18 = body14.newObject("Sketcher::SketchObject", "Sketch017")
sketch18.AttachmentSupport = (doc.getObject("XZ_Plane013"), [""])
sketch18.MapMode = "FlatFace"
sketch18.AttachmentOffset = App.Placement(V(0, 0, -1726.553475), App.Rotation())
sketch18.addGeometry([
    Part.LineSegment(V(767, 880, 0), V(697, 880, 0)),  # 0
    Part.LineSegment(V(697, 880, 0), V(697, 535, 0)),  # 1
    Part.LineSegment(V(697, 535, 0), V(333, 535, 0)),  # 2
    Part.LineSegment(V(333, 535, 0), V(333, 880, 0)),  # 3
    Part.LineSegment(V(333, 880, 0), V(297, 880, 0)),  # 4
    Part.LineSegment(V(297, 880, 0), V(297, 535, 0)),  # 5
    Part.LineSegment(V(297, 535, 0), V(-67, 535, 0)),  # 6
    Part.LineSegment(V(-67, 535, 0), V(-67, 880, 0)),  # 7
    Part.LineSegment(V(-67, 880, 0), V(-137, 880, 0)),  # 8
    Part.LineSegment(V(-137, 880, 0), V(-137, 0, 0)),  # 9
    Part.LineSegment(V(-137, 0, 0), V(-67, 0, 0)),  # 10
    Part.LineSegment(V(-67, 0, 0), V(-67, 485, 0)),  # 11
    Part.LineSegment(V(-67, 485, 0), V(697, 485, 0)),  # 12
    Part.LineSegment(V(697, 485, 0), V(697, 0, 0)),  # 13
    Part.LineSegment(V(697, 0, 0), V(767, 0, 0)),  # 14
    Part.LineSegment(V(767, 0, 0), V(767, 880, 0)),  # 15
], False)
sketch18.addConstraint([
    Sketcher.Constraint("Coincident", 0, 2, 1, 1),
    Sketcher.Constraint("Coincident", 1, 2, 2, 1),
    Sketcher.Constraint("Coincident", 2, 2, 3, 1),
    Sketcher.Constraint("Coincident", 3, 2, 4, 1),
    Sketcher.Constraint("Coincident", 4, 2, 5, 1),
    Sketcher.Constraint("Coincident", 5, 2, 6, 1),
    Sketcher.Constraint("Coincident", 6, 2, 7, 1),
    Sketcher.Constraint("Coincident", 7, 2, 8, 1),
    Sketcher.Constraint("Coincident", 8, 2, 9, 1),
    Sketcher.Constraint("Coincident", 9, 2, 10, 1),
    Sketcher.Constraint("Coincident", 10, 2, 11, 1),
    Sketcher.Constraint("Coincident", 11, 2, 12, 1),
    Sketcher.Constraint("Coincident", 12, 2, 13, 1),
    Sketcher.Constraint("Coincident", 13, 2, 14, 1),
    Sketcher.Constraint("Coincident", 14, 2, 15, 1),
    Sketcher.Constraint("Coincident", 15, 2, 0, 1),
    Sketcher.Constraint("Horizontal", 0),
    Sketcher.Constraint("Vertical", 1),
    Sketcher.Constraint("Horizontal", 2),
    Sketcher.Constraint("Vertical", 3),
    Sketcher.Constraint("Horizontal", 4),
    Sketcher.Constraint("Vertical", 5),
    Sketcher.Constraint("Horizontal", 6),
    Sketcher.Constraint("Vertical", 7),
    Sketcher.Constraint("Horizontal", 8),
    Sketcher.Constraint("Vertical", 9),
    Sketcher.Constraint("Horizontal", 10),
    Sketcher.Constraint("Vertical", 11),
    Sketcher.Constraint("Horizontal", 12),
    Sketcher.Constraint("Vertical", 13),
    Sketcher.Constraint("Horizontal", 14),
    Sketcher.Constraint("Vertical", 15),
    Sketcher.Constraint("PointOnObject", 9, 2, -1),
    Sketcher.Constraint("PointOnObject", 13, 2, -1),
    Sketcher.Constraint("Horizontal", 0, 2, 3, 2),
    Sketcher.Constraint("Horizontal", 2, 2, 5, 2),
    Sketcher.Constraint("Horizontal", 4, 2, 7, 2),
    Sketcher.Constraint("Vertical", 7, 2, 10, 2),
    Sketcher.Constraint("Vertical", 1, 2, 12, 2),
    Sketcher.Constraint("Equal", 2, 6),
    Sketcher.Constraint("Equal", 0, 8),
    Sketcher.Constraint("DistanceX", 0, 2, 0, 1, 70.0),
    Sketcher.Constraint("DistanceX", 2, 2, 2, 1, 364.0),
    Sketcher.Constraint("DistanceX", 4, 2, 4, 1, 36.0),
    Sketcher.Constraint("DistanceY", 1, 2, 1, 1, 345.0),
    Sketcher.Constraint("DistanceY", 9, 2, 9, 1, 880.0),
    Sketcher.Constraint("DistanceY", 11, 1, 11, 2, 485.0),
    Sketcher.Constraint("DistanceX", -1, 1, 0, 2, 697.294823),
])
sketch18.setExpression("Constraints[41]", "Params.sketch18_width")
sketch18.setExpression("Constraints[42]", "Params.sketch18_width2")
sketch18.setExpression("Constraints[43]", "Params.sketch18_width3")
sketch18.setExpression("Constraints[44]", "Params.sketch18_height")
sketch18.setExpression("Constraints[45]", "Params.sketch18_height2")
pad16 = body14.newObject("PartDesign::Pad", "Pad015")
pad16.Profile = sketch18
pad16.setExpression("Length", "Params.pad16_length")
body15 = doc.addObject("PartDesign::Body", "Body014")

# Sketch on XZ plane
sketch19 = body15.newObject("Sketcher::SketchObject", "Sketch018")
sketch19.AttachmentSupport = (doc.getObject("XZ_Plane014"), [""])
sketch19.MapMode = "FlatFace"
sketch19.AttachmentOffset = App.Placement(V(0, 0, -1726.553475), App.Rotation())
sketch19.addGeometry([
    Part.LineSegment(V(1847, 880, 0), V(1847, 0, 0)),
    Part.LineSegment(V(1847, 0, 0), V(1917, 0, 0)),
    Part.LineSegment(V(1917, 0, 0), V(1917, 880, 0)),
    Part.LineSegment(V(1917, 880, 0), V(1847, 880, 0)),
], False)
sketch19.addConstraint([
    Sketcher.Constraint("Coincident", 0, 2, 1, 1),
    Sketcher.Constraint("Coincident", 1, 2, 2, 1),
    Sketcher.Constraint("Coincident", 2, 2, 3, 1),
    Sketcher.Constraint("Coincident", 3, 2, 0, 1),
    Sketcher.Constraint("Vertical", 0),
    Sketcher.Constraint("Horizontal", 1),
    Sketcher.Constraint("Vertical", 2),
    Sketcher.Constraint("Horizontal", 3),
    Sketcher.Constraint("PointOnObject", 0, 2, -1),
    Sketcher.Constraint("DistanceX", 1, 1, 1, 2, 70.0),
    Sketcher.Constraint("DistanceY", 0, 2, 0, 1, 880.0),
    Sketcher.Constraint("DistanceX", -1, 1, 0, 2, 1847.294823),
])
sketch19.setExpression("Constraints[9]", "Params.sketch19_width")
sketch19.setExpression("Constraints[10]", "Params.sketch19_height")
pad17 = body15.newObject("PartDesign::Pad", "Pad016")
pad17.Profile = sketch19
pad17.setExpression("Length", "Params.pad17_length")

doc.recompute()
